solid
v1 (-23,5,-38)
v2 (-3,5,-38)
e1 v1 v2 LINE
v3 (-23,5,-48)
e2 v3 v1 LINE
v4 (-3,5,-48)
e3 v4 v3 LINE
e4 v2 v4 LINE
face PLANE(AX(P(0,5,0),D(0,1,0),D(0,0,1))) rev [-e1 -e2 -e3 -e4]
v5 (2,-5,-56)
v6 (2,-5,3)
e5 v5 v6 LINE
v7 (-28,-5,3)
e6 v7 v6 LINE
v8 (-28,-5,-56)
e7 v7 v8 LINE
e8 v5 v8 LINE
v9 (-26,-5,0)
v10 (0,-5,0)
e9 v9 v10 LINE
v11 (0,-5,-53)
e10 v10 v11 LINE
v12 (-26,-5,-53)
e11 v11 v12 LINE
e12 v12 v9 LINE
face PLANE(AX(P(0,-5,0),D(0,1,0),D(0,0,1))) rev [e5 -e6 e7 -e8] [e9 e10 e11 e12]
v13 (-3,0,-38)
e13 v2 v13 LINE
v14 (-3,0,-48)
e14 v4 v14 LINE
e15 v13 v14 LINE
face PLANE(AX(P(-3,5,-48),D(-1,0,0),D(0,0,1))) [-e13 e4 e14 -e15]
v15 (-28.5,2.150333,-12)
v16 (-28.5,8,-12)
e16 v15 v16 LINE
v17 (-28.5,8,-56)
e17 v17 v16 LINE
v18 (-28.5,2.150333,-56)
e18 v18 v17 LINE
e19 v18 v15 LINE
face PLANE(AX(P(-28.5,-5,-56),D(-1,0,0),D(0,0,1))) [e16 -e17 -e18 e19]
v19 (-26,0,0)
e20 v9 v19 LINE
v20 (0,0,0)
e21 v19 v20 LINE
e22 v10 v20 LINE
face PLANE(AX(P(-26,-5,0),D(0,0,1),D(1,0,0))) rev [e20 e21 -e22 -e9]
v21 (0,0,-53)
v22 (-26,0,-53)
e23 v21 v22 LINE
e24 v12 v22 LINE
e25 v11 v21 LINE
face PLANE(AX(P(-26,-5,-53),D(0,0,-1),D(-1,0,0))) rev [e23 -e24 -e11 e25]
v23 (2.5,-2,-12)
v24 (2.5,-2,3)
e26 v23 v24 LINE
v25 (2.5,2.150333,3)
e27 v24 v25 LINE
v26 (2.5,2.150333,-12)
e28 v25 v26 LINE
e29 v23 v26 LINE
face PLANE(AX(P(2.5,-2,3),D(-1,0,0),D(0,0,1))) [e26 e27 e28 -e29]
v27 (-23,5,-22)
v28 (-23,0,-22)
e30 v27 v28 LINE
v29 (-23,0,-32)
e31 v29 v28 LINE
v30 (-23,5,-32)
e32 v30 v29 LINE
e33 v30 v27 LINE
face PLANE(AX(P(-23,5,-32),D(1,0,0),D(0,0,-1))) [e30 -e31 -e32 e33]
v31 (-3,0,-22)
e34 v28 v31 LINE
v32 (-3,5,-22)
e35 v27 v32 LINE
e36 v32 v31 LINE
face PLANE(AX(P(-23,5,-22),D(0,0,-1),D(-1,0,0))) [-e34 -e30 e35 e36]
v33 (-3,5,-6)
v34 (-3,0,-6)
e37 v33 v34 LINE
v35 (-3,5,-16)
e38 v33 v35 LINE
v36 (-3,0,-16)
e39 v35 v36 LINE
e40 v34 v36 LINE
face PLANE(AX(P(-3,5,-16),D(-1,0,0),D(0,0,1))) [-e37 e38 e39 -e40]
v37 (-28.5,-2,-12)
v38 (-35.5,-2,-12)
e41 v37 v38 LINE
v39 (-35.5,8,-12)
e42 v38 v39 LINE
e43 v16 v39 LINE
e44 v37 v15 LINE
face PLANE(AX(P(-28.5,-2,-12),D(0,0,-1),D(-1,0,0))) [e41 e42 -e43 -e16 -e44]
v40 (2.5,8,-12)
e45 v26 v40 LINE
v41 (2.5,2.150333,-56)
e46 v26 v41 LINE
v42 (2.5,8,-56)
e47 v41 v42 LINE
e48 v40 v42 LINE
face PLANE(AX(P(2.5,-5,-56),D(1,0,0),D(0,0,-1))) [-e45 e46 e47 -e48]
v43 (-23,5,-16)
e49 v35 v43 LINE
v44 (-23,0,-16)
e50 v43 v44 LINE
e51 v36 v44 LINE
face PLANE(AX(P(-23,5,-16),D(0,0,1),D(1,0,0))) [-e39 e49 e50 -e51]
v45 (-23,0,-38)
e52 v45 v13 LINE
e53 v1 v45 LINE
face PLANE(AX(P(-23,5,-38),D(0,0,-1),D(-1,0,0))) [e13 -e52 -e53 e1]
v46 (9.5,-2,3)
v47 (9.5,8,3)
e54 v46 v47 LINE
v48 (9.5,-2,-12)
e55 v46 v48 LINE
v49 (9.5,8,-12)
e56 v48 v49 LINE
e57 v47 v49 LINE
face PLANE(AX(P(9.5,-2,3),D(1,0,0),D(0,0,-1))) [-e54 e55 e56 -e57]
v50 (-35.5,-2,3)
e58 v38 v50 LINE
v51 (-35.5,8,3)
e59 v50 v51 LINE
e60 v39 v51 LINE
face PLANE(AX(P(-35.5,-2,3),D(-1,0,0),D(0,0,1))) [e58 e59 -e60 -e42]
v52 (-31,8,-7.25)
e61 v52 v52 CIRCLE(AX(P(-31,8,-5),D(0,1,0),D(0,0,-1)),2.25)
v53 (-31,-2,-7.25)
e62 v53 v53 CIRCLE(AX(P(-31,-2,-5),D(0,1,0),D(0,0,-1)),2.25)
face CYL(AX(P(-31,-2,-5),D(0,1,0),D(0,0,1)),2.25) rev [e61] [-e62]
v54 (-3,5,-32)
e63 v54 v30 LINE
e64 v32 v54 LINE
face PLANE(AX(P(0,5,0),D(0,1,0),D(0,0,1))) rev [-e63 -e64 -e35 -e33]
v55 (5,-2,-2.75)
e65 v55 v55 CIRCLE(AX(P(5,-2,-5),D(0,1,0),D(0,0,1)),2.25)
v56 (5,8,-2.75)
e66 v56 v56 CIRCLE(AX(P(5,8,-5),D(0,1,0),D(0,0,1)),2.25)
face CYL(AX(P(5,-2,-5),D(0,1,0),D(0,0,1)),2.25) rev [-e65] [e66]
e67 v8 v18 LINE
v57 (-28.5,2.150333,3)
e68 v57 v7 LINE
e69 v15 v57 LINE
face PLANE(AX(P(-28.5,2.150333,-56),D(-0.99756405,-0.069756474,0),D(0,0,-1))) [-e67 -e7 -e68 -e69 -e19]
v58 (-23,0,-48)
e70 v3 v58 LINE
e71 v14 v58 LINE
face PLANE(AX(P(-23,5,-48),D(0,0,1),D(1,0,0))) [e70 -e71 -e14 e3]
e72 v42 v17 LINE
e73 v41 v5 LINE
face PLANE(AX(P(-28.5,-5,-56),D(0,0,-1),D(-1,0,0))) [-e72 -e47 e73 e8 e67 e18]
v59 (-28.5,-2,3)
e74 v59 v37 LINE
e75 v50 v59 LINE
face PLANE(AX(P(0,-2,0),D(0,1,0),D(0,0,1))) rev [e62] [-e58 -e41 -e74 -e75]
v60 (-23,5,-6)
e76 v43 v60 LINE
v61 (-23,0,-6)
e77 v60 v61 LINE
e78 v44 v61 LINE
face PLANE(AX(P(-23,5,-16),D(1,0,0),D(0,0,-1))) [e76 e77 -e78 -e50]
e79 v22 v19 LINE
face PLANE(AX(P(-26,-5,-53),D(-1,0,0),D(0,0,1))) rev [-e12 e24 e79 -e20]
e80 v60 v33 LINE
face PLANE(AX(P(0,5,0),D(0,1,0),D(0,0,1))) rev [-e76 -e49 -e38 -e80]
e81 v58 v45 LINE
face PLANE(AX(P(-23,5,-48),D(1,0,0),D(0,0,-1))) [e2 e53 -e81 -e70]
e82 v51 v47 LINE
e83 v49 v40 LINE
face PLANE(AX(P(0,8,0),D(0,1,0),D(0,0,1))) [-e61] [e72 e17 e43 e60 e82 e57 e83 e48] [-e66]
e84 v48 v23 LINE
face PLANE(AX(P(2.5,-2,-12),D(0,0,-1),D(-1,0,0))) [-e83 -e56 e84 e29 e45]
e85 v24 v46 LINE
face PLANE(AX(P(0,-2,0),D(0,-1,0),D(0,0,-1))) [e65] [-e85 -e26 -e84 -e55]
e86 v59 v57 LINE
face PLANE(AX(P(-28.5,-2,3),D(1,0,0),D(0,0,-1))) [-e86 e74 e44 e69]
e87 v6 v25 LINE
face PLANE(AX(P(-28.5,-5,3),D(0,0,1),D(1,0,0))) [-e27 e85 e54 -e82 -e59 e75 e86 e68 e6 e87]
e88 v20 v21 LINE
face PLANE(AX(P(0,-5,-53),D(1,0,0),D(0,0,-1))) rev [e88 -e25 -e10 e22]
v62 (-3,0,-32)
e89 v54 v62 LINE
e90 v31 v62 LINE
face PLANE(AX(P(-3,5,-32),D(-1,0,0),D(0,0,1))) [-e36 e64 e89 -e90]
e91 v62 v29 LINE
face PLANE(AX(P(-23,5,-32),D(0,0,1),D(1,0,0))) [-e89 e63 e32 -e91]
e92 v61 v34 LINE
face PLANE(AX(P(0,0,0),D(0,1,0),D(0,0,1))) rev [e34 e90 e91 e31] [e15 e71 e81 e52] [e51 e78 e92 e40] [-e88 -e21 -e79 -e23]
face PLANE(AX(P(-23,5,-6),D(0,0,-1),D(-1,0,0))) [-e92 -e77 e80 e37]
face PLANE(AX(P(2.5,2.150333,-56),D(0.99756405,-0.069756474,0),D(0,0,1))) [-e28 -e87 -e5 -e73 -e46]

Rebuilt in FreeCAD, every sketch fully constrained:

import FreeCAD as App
import Part
import Sketcher

V = App.Vector
Q = App.Units.Quantity


def edges_at(feature, points):
    """Names of the edges that pass closest to the given points."""
    edges = feature.Shape.Edges
    near = lambda p: min(range(len(edges)), key=lambda i: edges[i].distToShape(Part.Vertex(*p))[0])
    return sorted({f"Edge{near(p) + 1}" for p in points})

doc = App.newDocument("Part")
body = doc.addObject("PartDesign::Body", "Body")

# Sketch on XZ plane
sketch1 = body.newObject("Sketcher::SketchObject", "Sketch")
sketch1.AttachmentSupport = (doc.getObject("XZ_Plane"), [""])
sketch1.MapMode = "FlatFace"
sketch1.addGeometry(Part.LineSegment(V(-26, -53, 0), V(-26, 0, 0)), False)
sketch1.addGeometry(Part.LineSegment(V(-26, 0, 0), V(0, 0, 0)), False)
sketch1.addGeometry(Part.LineSegment(V(0, 0, 0), V(0, -53, 0)), False)
sketch1.addGeometry(Part.LineSegment(V(0, -53, 0), V(-26, -53, 0)), False)
sketch1.addGeometry(Part.LineSegment(V(-3, -6, 0), V(-23, -6, 0)), False)
sketch1.addGeometry(Part.LineSegment(V(-23, -6, 0), V(-23, -16, 0)), False)
sketch1.addGeometry(Part.LineSegment(V(-23, -16, 0), V(-3, -16, 0)), False)
sketch1.addGeometry(Part.LineSegment(V(-3, -16, 0), V(-3, -6, 0)), False)
sketch1.addGeometry(Part.LineSegment(V(-3, -22, 0), V(-23, -22, 0)), False)
sketch1.addGeometry(Part.LineSegment(V(-23, -22, 0), V(-23, -32, 0)), False)
sketch1.addGeometry(Part.LineSegment(V(-23, -32, 0), V(-3, -32, 0)), False)
sketch1.addGeometry(Part.LineSegment(V(-3, -32, 0), V(-3, -22, 0)), False)
sketch1.addGeometry(Part.LineSegment(V(-3, -38, 0), V(-23, -38, 0)), False)
sketch1.addGeometry(Part.LineSegment(V(-23, -38, 0), V(-23, -48, 0)), False)
sketch1.addGeometry(Part.LineSegment(V(-23, -48, 0), V(-3, -48, 0)), False)
sketch1.addGeometry(Part.LineSegment(V(-3, -48, 0), V(-3, -38, 0)), False)
sketch1.addConstraint(Sketcher.Constraint("Coincident", 0, 2, 1, 1))
sketch1.addConstraint(Sketcher.Constraint("Coincident", 1, 2, 2, 1))
sketch1.addConstraint(Sketcher.Constraint("Coincident", 2, 2, 3, 1))
sketch1.addConstraint(Sketcher.Constraint("Coincident", 3, 2, 0, 1))
sketch1.addConstraint(Sketcher.Constraint("Coincident", 4, 2, 5, 1))
sketch1.addConstraint(Sketcher.Constraint("Coincident", 5, 2, 6, 1))
sketch1.addConstraint(Sketcher.Constraint("Coincident", 6, 2, 7, 1))
sketch1.addConstraint(Sketcher.Constraint("Coincident", 7, 2, 4, 1))
sketch1.addConstraint(Sketcher.Constraint("Coincident", 8, 2, 9, 1))
sketch1.addConstraint(Sketcher.Constraint("Coincident", 9, 2, 10, 1))
sketch1.addConstraint(Sketcher.Constraint("Coincident", 10, 2, 11, 1))
sketch1.addConstraint(Sketcher.Constraint("Coincident", 11, 2, 8, 1))
sketch1.addConstraint(Sketcher.Constraint("Coincident", 12, 2, 13, 1))
sketch1.addConstraint(Sketcher.Constraint("Coincident", 13, 2, 14, 1))
sketch1.addConstraint(Sketcher.Constraint("Coincident", 14, 2, 15, 1))
sketch1.addConstraint(Sketcher.Constraint("Coincident", 15, 2, 12, 1))
sketch1.addConstraint(Sketcher.Constraint("Vertical", 0))
sketch1.addConstraint(Sketcher.Constraint("Horizontal", 1))
sketch1.addConstraint(Sketcher.Constraint("Vertical", 2))
sketch1.addConstraint(Sketcher.Constraint("Horizontal", 3))
sketch1.addConstraint(Sketcher.Constraint("Horizontal", 4))
sketch1.addConstraint(Sketcher.Constraint("Vertical", 5))
sketch1.addConstraint(Sketcher.Constraint("Horizontal", 6))
sketch1.addConstraint(Sketcher.Constraint("Vertical", 7))
sketch1.addConstraint(Sketcher.Constraint("Horizontal", 8))
sketch1.addConstraint(Sketcher.Constraint("Vertical", 9))
sketch1.addConstraint(Sketcher.Constraint("Horizontal", 10))
sketch1.addConstraint(Sketcher.Constraint("Vertical", 11))
sketch1.addConstraint(Sketcher.Constraint("Horizontal", 12))
sketch1.addConstraint(Sketcher.Constraint("Vertical", 13))
sketch1.addConstraint(Sketcher.Constraint("Horizontal", 14))
sketch1.addConstraint(Sketcher.Constraint("Vertical", 15))
sketch1.addConstraint(Sketcher.Constraint("Coincident", 1, 2, -1, 1))
sketch1.addConstraint(Sketcher.Constraint("Vertical", 5, 2, 8, 2))
sketch1.addConstraint(Sketcher.Constraint("Vertical", 7, 2, 10, 2))
sketch1.addConstraint(Sketcher.Constraint("Vertical", 9, 2, 12, 2))
sketch1.addConstraint(Sketcher.Constraint("Vertical", 11, 2, 14, 2))
sketch1.addConstraint(Sketcher.Constraint("Equal", 7, 9))
sketch1.addConstraint(Sketcher.Constraint("Equal", 11, 13))
sketch1.addConstraint(Sketcher.Constraint("DistanceX", 1, 1, 1, 2, Q("26 mm")))
sketch1.addConstraint(Sketcher.Constraint("DistanceX", 4, 2, 4, 1, Q("20 mm")))
sketch1.addConstraint(Sketcher.Constraint("DistanceY", 0, 1, 0, 2, Q("53 mm")))
sketch1.addConstraint(Sketcher.Constraint("DistanceY", 5, 2, 5, 1, Q("10 mm")))
sketch1.addConstraint(Sketcher.Constraint("DistanceX", 4, 2, -1, 1, Q("23 mm")))
sketch1.addConstraint(Sketcher.Constraint("DistanceY", 4, 2, -1, 1, Q("6 mm")))
sketch1.addConstraint(Sketcher.Constraint("DistanceY", 8, 2, -1, 1, Q("22 mm")))
sketch1.addConstraint(Sketcher.Constraint("DistanceY", 12, 2, -1, 1, Q("38 mm")))
pad1 = body.newObject("PartDesign::Pad", "Pad")
pad1.Profile = sketch1
pad1.Length = 5
pad1.Reversed = True

# Sketch on XZ plane
sketch2 = body.newObject("Sketcher::SketchObject", "Sketch001")
sketch2.AttachmentSupport = (doc.getObject("XZ_Plane"), [""])
sketch2.MapMode = "FlatFace"
sketch2.AttachmentOffset = App.Placement(V(0, 0, -5), App.Rotation())
sketch2.addGeometry(Part.LineSegment(V(-28.5, -56, 0), V(-28.5, 3, 0)), False)
sketch2.addGeometry(Part.LineSegment(V(-28.5, 3, 0), V(2.5, 3, 0)), False)
sketch2.addGeometry(Part.LineSegment(V(2.5, 3, 0), V(2.5, -56, 0)), False)
sketch2.addGeometry(Part.LineSegment(V(2.5, -56, 0), V(-28.5, -56, 0)), False)
sketch2.addGeometry(Part.LineSegment(V(0, 0, 0), V(-26, 0, 0)), False)
sketch2.addGeometry(Part.LineSegment(V(-26, 0, 0), V(-26, -53, 0)), False)
sketch2.addGeometry(Part.LineSegment(V(-26, -53, 0), V(0, -53, 0)), False)
sketch2.addGeometry(Part.LineSegment(V(0, -53, 0), V(0, 0, 0)), False)
sketch2.addConstraint(Sketcher.Constraint("Coincident", 0, 2, 1, 1))
sketch2.addConstraint(Sketcher.Constraint("Coincident", 1, 2, 2, 1))
sketch2.addConstraint(Sketcher.Constraint("Coincident", 2, 2, 3, 1))
sketch2.addConstraint(Sketcher.Constraint("Coincident", 3, 2, 0, 1))
sketch2.addConstraint(Sketcher.Constraint("Coincident", 4, 2, 5, 1))
sketch2.addConstraint(Sketcher.Constraint("Coincident", 5, 2, 6, 1))
sketch2.addConstraint(Sketcher.Constraint("Coincident", 6, 2, 7, 1))
sketch2.addConstraint(Sketcher.Constraint("Coincident", 7, 2, 4, 1))
sketch2.addConstraint(Sketcher.Constraint("Vertical", 0))
sketch2.addConstraint(Sketcher.Constraint("Horizontal", 1))
sketch2.addConstraint(Sketcher.Constraint("Vertical", 2))
sketch2.addConstraint(Sketcher.Constraint("Horizontal", 3))
sketch2.addConstraint(Sketcher.Constraint("Horizontal", 4))
sketch2.addConstraint(Sketcher.Constraint("Vertical", 5))
sketch2.addConstraint(Sketcher.Constraint("Horizontal", 6))
sketch2.addConstraint(Sketcher.Constraint("Vertical", 7))
sketch2.addConstraint(Sketcher.Constraint("Coincident", 7, 2, -1, 1))
sketch2.addConstraint(Sketcher.Constraint("DistanceX", 1, 1, 1, 2, Q("31 mm")))
sketch2.addConstraint(Sketcher.Constraint("DistanceX", 4, 2, 4, 1, Q("26 mm")))
sketch2.addConstraint(Sketcher.Constraint("DistanceY", 0, 1, 0, 2, Q("59 mm")))
sketch2.addConstraint(Sketcher.Constraint("DistanceY", 5, 2, 5, 1, Q("53 mm")))
sketch2.addConstraint(Sketcher.Constraint("DistanceY", -1, 1, 0, 2, Q("3 mm")))
sketch2.addConstraint(Sketcher.Constraint("DistanceX", 0, 2, -1, 1, Q("28.5 mm")))
pad2 = body.newObject("PartDesign::Pad", "Pad001")
pad2.Profile = sketch2
pad2.Length = 10

# Sketch on XZ plane
sketch3 = body.newObject("Sketcher::SketchObject", "Sketch002")
sketch3.AttachmentSupport = (doc.getObject("XZ_Plane"), [""])
sketch3.MapMode = "FlatFace"
sketch3.AttachmentOffset = App.Placement(V(0, 0, -5), App.Rotation())
sketch3.addGeometry(Part.LineSegment(V(-28.5, -56, 0), V(-28.5, 3, 0)), False)
sketch3.addGeometry(Part.LineSegment(V(-28.5, 3, 0), V(2.5, 3, 0)), False)
sketch3.addGeometry(Part.LineSegment(V(2.5, 3, 0), V(2.5, -56, 0)), False)
sketch3.addGeometry(Part.LineSegment(V(2.5, -56, 0), V(-28.5, -56, 0)), False)
sketch3.addConstraint(Sketcher.Constraint("Coincident", 0, 2, 1, 1))
sketch3.addConstraint(Sketcher.Constraint("Coincident", 1, 2, 2, 1))
sketch3.addConstraint(Sketcher.Constraint("Coincident", 2, 2, 3, 1))
sketch3.addConstraint(Sketcher.Constraint("Coincident", 3, 2, 0, 1))
sketch3.addConstraint(Sketcher.Constraint("Vertical", 0))
sketch3.addConstraint(Sketcher.Constraint("Horizontal", 1))
sketch3.addConstraint(Sketcher.Constraint("Vertical", 2))
sketch3.addConstraint(Sketcher.Constraint("Horizontal", 3))
sketch3.addConstraint(Sketcher.Constraint("DistanceX", 1, 1, 1, 2, Q("31 mm")))
sketch3.addConstraint(Sketcher.Constraint("DistanceY", 0, 1, 0, 2, Q("59 mm")))
sketch3.addConstraint(Sketcher.Constraint("DistanceY", -1, 1, 0, 2, Q("3 mm")))
sketch3.addConstraint(Sketcher.Constraint("DistanceX", 0, 2, -1, 1, Q("28.5 mm")))
pad3 = body.newObject("PartDesign::Pad", "Pad002")
pad3.Profile = sketch3
pad3.Length = 3
pad3.Reversed = True
doc.recompute()

chamfer = body.newObject("PartDesign::Chamfer", "Chamfer")
chamfer.Base = (pad3, edges_at(pad3, [(-28.5, -5, -26.5), (2.5, -5, -26.5)]))
chamfer.ChamferType = "Two distances"
chamfer.Size = 0.5
chamfer.Size2 = 7.150333

# Sketch on XZ plane
sketch4 = body.newObject("Sketcher::SketchObject", "Sketch003")
sketch4.AttachmentSupport = (doc.getObject("XZ_Plane"), [""])
sketch4.MapMode = "FlatFace"
sketch4.AttachmentOffset = App.Placement(V(0, 0, -8), App.Rotation())
sketch4.addGeometry(Part.LineSegment(V(2.5, -12, 0), V(2.5, 3, 0)), False)
sketch4.addGeometry(Part.LineSegment(V(2.5, 3, 0), V(9.5, 3, 0)), False)
sketch4.addGeometry(Part.LineSegment(V(9.5, 3, 0), V(9.5, -12, 0)), False)
sketch4.addGeometry(Part.LineSegment(V(9.5, -12, 0), V(2.5, -12, 0)), False)
sketch4.addGeometry(Part.Circle(V(5, -5, 0), V(0, 0, 1), 2.25), False)
sketch4.addGeometry(Part.LineSegment(V(-35.5, -12, 0), V(-35.5, 3, 0)), False)
sketch4.addGeometry(Part.LineSegment(V(-35.5, 3, 0), V(-28.5, 3, 0)), False)
sketch4.addGeometry(Part.LineSegment(V(-28.5, 3, 0), V(-28.5, -12, 0)), False)
sketch4.addGeometry(Part.LineSegment(V(-28.5, -12, 0), V(-35.5, -12, 0)), False)
sketch4.addGeometry(Part.Circle(V(-31, -5, 0), V(0, 0, 1), 2.25), False)
sketch4.addConstraint(Sketcher.Constraint("Coincident", 0, 2, 1, 1))
sketch4.addConstraint(Sketcher.Constraint("Coincident", 1, 2, 2, 1))
sketch4.addConstraint(Sketcher.Constraint("Coincident", 2, 2, 3, 1))
sketch4.addConstraint(Sketcher.Constraint("Coincident", 3, 2, 0, 1))
sketch4.addConstraint(Sketcher.Constraint("Coincident", 5, 2, 6, 1))
sketch4.addConstraint(Sketcher.Constraint("Coincident", 6, 2, 7, 1))
sketch4.addConstraint(Sketcher.Constraint("Coincident", 7, 2, 8, 1))
sketch4.addConstraint(Sketcher.Constraint("Coincident", 8, 2, 5, 1))
sketch4.addConstraint(Sketcher.Constraint("Vertical", 0))
sketch4.addConstraint(Sketcher.Constraint("Horizontal", 1))
sketch4.addConstraint(Sketcher.Constraint("Vertical", 2))
sketch4.addConstraint(Sketcher.Constraint("Horizontal", 3))
sketch4.addConstraint(Sketcher.Constraint("Vertical", 5))
sketch4.addConstraint(Sketcher.Constraint("Horizontal", 6))
sketch4.addConstraint(Sketcher.Constraint("Vertical", 7))
sketch4.addConstraint(Sketcher.Constraint("Horizontal", 8))
sketch4.addConstraint(Sketcher.Constraint("Equal", 4, 9))
sketch4.addConstraint(Sketcher.Constraint("Horizontal", 4, 3, 9, 3))
sketch4.addConstraint(Sketcher.Constraint("Horizontal", 1, 2, 5, 2))
sketch4.addConstraint(Sketcher.Constraint("Horizontal", 3, 2, 7, 2))
sketch4.addConstraint(Sketcher.Constraint("Equal", 3, 6))
sketch4.addConstraint(Sketcher.Constraint("Diameter", 4, Q("4.5 mm")))
sketch4.addConstraint(Sketcher.Constraint("DistanceX", 1, 1, 1, 2, Q("7 mm")))
sketch4.addConstraint(Sketcher.Constraint("DistanceY", 0, 1, 0, 2, Q("15 mm")))
sketch4.addConstraint(Sketcher.Constraint("DistanceX", -1, 1, 4, 3, Q("5 mm")))
sketch4.addConstraint(Sketcher.Constraint("DistanceY", 4, 3, -1, 1, Q("5 mm")))
sketch4.addConstraint(Sketcher.Constraint("DistanceX", 9, 3, -1, 1, Q("31 mm")))
sketch4.addConstraint(Sketcher.Constraint("DistanceY", -1, 1, 0, 2, Q("3 mm")))
sketch4.addConstraint(Sketcher.Constraint("DistanceX", 5, 2, 0, 2, Q("38 mm")))
sketch4.addConstraint(Sketcher.Constraint("DistanceX", -1, 1, 0, 2, Q("2.5 mm")))
pad4 = body.newObject("PartDesign::Pad", "Pad003")
pad4.Profile = sketch4
pad4.Length = 10

doc.recompute()
